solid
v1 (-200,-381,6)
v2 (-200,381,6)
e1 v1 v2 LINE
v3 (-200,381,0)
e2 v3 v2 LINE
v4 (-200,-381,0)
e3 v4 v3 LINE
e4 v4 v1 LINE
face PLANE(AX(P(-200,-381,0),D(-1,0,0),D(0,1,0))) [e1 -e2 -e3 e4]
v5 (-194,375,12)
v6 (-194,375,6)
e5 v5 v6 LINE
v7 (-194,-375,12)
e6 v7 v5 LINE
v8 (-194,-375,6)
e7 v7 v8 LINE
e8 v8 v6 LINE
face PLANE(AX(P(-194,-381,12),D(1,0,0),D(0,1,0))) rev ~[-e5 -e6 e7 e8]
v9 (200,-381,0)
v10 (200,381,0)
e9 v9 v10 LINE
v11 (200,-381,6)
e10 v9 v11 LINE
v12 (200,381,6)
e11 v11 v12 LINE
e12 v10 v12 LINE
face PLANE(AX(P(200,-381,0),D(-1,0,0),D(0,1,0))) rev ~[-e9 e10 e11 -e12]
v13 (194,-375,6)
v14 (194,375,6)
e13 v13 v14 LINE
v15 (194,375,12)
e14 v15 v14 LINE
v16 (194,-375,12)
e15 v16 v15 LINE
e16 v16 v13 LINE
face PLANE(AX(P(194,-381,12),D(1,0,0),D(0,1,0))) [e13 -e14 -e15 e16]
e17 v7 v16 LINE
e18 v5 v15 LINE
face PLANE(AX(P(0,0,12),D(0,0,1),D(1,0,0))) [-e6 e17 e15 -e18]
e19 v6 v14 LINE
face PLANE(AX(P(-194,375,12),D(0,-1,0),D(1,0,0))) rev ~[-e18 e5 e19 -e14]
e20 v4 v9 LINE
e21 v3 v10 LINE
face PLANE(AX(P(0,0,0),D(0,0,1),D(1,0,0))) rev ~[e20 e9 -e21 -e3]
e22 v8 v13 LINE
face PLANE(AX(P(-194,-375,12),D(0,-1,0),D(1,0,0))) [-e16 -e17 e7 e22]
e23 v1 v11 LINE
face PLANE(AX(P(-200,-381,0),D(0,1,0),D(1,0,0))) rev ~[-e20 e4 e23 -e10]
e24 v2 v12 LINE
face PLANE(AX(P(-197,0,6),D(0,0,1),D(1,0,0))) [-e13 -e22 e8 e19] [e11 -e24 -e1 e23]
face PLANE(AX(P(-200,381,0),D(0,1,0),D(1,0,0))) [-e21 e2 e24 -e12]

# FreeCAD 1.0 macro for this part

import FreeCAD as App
import Part
import Sketcher
from FreeCAD import Vector
Q = App.Units.Quantity

doc = App.newDocument("Part")
body = doc.addObject("PartDesign::Body", "Body")

# Sketch on XY plane
sketch1 = body.newObject("Sketcher::SketchObject", "Sketch")
sketch1.AttachmentSupport = (doc.getObject("XY_Plane"), [""])
sketch1.MapMode = "FlatFace"
sketch1.addGeometry(Part.LineSegment(Vector(-200, 381, 0), Vector(-200, -381, 0)), False)
sketch1.addGeometry(Part.LineSegment(Vector(-200, -381, 0), Vector(200, -381, 0)), False)
sketch1.addGeometry(Part.LineSegment(Vector(200, -381, 0), Vector(200, 381, 0)), False)
sketch1.addGeometry(Part.LineSegment(Vector(200, 381, 0), Vector(-200, 381, 0)), False)
sketch1.addConstraint(Sketcher.Constraint("Coincident", 0, 2, 1, 1))
sketch1.addConstraint(Sketcher.Constraint("Coincident", 1, 2, 2, 1))
sketch1.addConstraint(Sketcher.Constraint("Coincident", 2, 2, 3, 1))
sketch1.addConstraint(Sketcher.Constraint("Coincident", 3, 2, 0, 1))
sketch1.addConstraint(Sketcher.Constraint("Vertical", 0))
sketch1.addConstraint(Sketcher.Constraint("Horizontal", 1))
sketch1.addConstraint(Sketcher.Constraint("Vertical", 2))
sketch1.addConstraint(Sketcher.Constraint("Horizontal", 3))
sketch1.addConstraint(Sketcher.Constraint("Symmetric", 0, 2, 2, 2, -1, 1))
sketch1.addConstraint(Sketcher.Constraint("DistanceX", 1, 1, 1, 2, Q("400 mm")))
sketch1.addConstraint(Sketcher.Constraint("DistanceY", 0, 2, 0, 1, Q("762 mm")))
pad1 = body.newObject("PartDesign::Pad", "Pad")
pad1.Profile = sketch1
pad1.Length = 12

# Sketch on XY plane
sketch2 = body.newObject("Sketcher::SketchObject", "Sketch001")
sketch2.AttachmentSupport = (doc.getObject("XY_Plane"), [""])
sketch2.MapMode = "FlatFace"
sketch2.AttachmentOffset = App.Placement(Vector(0, 0, 12), App.Rotation())
sketch2.addGeometry(Part.LineSegment(Vector(-200, 381, 0), Vector(-200, -381, 0)), False)
sketch2.addGeometry(Part.LineSegment(Vector(-200, -381, 0), Vector(-194, -381, 0)), False)
sketch2.addGeometry(Part.LineSegment(Vector(-194, -381, 0), Vector(-194, 381, 0)), False)
sketch2.addGeometry(Part.LineSegment(Vector(-194, 381, 0), Vector(-200, 381, 0)), False)
sketch2.addConstraint(Sketcher.Constraint("Coincident", 0, 2, 1, 1))
sketch2.addConstraint(Sketcher.Constraint("Coincident", 1, 2, 2, 1))
sketch2.addConstraint(Sketcher.Constraint("Coincident", 2, 2, 3, 1))
sketch2.addConstraint(Sketcher.Constraint("Coincident", 3, 2, 0, 1))
sketch2.addConstraint(Sketcher.Constraint("Vertical", 0))
sketch2.addConstraint(Sketcher.Constraint("Horizontal", 1))
sketch2.addConstraint(Sketcher.Constraint("Vertical", 2))
sketch2.addConstraint(Sketcher.Constraint("Horizontal", 3))
sketch2.addConstraint(Sketcher.Constraint("DistanceX", 1, 1, 1, 2, Q("6 mm")))
sketch2.addConstraint(Sketcher.Constraint("DistanceY", 0, 2, 0, 1, Q("762 mm")))
sketch2.addConstraint(Sketcher.Constraint("DistanceX", 0, 2, -1, 1, Q("200 mm")))
sketch2.addConstraint(Sketcher.Constraint("DistanceY", 0, 2, -1, 1, Q("381 mm")))
pocket1 = body.newObject("PartDesign::Pocket", "Pocket")
pocket1.Profile = sketch2
pocket1.Length = 6

# Sketch on XY plane
sketch3 = body.newObject("Sketcher::SketchObject", "Sketch002")
sketch3.AttachmentSupport = (doc.getObject("XY_Plane"), [""])
sketch3.MapMode = "FlatFace"
sketch3.AttachmentOffset = App.Placement(Vector(0, 0, 12), App.Rotation())
sketch3.addGeometry(Part.LineSegment(Vector(194, 381, 0), Vector(194, -381, 0)), False)
sketch3.addGeometry(Part.LineSegment(Vector(194, -381, 0), Vector(200, -381, 0)), False)
sketch3.addGeometry(Part.LineSegment(Vector(200, -381, 0), Vector(200, 381, 0)), False)
sketch3.addGeometry(Part.LineSegment(Vector(200, 381, 0), Vector(194, 381, 0)), False)
sketch3.addConstraint(Sketcher.Constraint("Coincident", 0, 2, 1, 1))
sketch3.addConstraint(Sketcher.Constraint("Coincident", 1, 2, 2, 1))
sketch3.addConstraint(Sketcher.Constraint("Coincident", 2, 2, 3, 1))
sketch3.addConstraint(Sketcher.Constraint("Coincident", 3, 2, 0, 1))
sketch3.addConstraint(Sketcher.Constraint("Vertical", 0))
sketch3.addConstraint(Sketcher.Constraint("Horizontal", 1))
sketch3.addConstraint(Sketcher.Constraint("Vertical", 2))
sketch3.addConstraint(Sketcher.Constraint("Horizontal", 3))
sketch3.addConstraint(Sketcher.Constraint("DistanceX", 1, 1, 1, 2, Q("6 mm")))
sketch3.addConstraint(Sketcher.Constraint("DistanceY", 0, 2, 0, 1, Q("762 mm")))
sketch3.addConstraint(Sketcher.Constraint("DistanceX", -1, 1, 0, 2, Q("194 mm")))
sketch3.addConstraint(Sketcher.Constraint("DistanceY", 0, 2, -1, 1, Q("381 mm")))
pocket2 = body.newObject("PartDesign::Pocket", "Pocket001")
pocket2.Profile = sketch3
pocket2.Length = 6

# Sketch on XY plane
sketch4 = body.newObject("Sketcher::SketchObject", "Sketch003")
sketch4.AttachmentSupport = (doc.getObject("XY_Plane"), [""])
sketch4.MapMode = "FlatFace"
sketch4.AttachmentOffset = App.Placement(Vector(0, 0, 12), App.Rotation())
sketch4.addGeometry(Part.LineSegment(Vector(-194, 381, 0), Vector(-194, 375, 0)), False)
sketch4.addGeometry(Part.LineSegment(Vector(-194, 375, 0), Vector(194, 375, 0)), False)
sketch4.addGeometry(Part.LineSegment(Vector(194, 375, 0), Vector(194, 381, 0)), False)
sketch4.addGeometry(Part.LineSegment(Vector(194, 381, 0), Vector(-194, 381, 0)), False)
sketch4.addConstraint(Sketcher.Constraint("Coincident", 0, 2, 1, 1))
sketch4.addConstraint(Sketcher.Constraint("Coincident", 1, 2, 2, 1))
sketch4.addConstraint(Sketcher.Constraint("Coincident", 2, 2, 3, 1))
sketch4.addConstraint(Sketcher.Constraint("Coincident", 3, 2, 0, 1))
sketch4.addConstraint(Sketcher.Constraint("Vertical", 0))
sketch4.addConstraint(Sketcher.Constraint("Horizontal", 1))
sketch4.addConstraint(Sketcher.Constraint("Vertical", 2))
sketch4.addConstraint(Sketcher.Constraint("Horizontal", 3))
sketch4.addConstraint(Sketcher.Constraint("DistanceX", 1, 1, 1, 2, Q("388 mm")))
sketch4.addConstraint(Sketcher.Constraint("DistanceY", 0, 2, 0, 1, Q("6 mm")))
sketch4.addConstraint(Sketcher.Constraint("DistanceX", 0, 2, -1, 1, Q("194 mm")))
sketch4.addConstraint(Sketcher.Constraint("DistanceY", -1, 1, 0, 2, Q("375 mm")))
pocket3 = body.newObject("PartDesign::Pocket", "Pocket002")
pocket3.Profile = sketch4
pocket3.Length = 6

# Sketch on XY plane
sketch5 = body.newObject("Sketcher::SketchObject", "Sketch004")
sketch5.AttachmentSupport = (doc.getObject("XY_Plane"), [""])
sketch5.MapMode = "FlatFace"
sketch5.AttachmentOffset = App.Placement(Vector(0, 0, 12), App.Rotation())
sketch5.addGeometry(Part.LineSegment(Vector(-194, -375, 0), Vector(-194, -381, 0)), False)
sketch5.addGeometry(Part.LineSegment(Vector(-194, -381, 0), Vector(194, -381, 0)), False)
sketch5.addGeometry(Part.LineSegment(Vector(194, -381, 0), Vector(194, -375, 0)), False)
sketch5.addGeometry(Part.LineSegment(Vector(194, -375, 0), Vector(-194, -375, 0)), False)
sketch5.addConstraint(Sketcher.Constraint("Coincident", 0, 2, 1, 1))
sketch5.addConstraint(Sketcher.Constraint("Coincident", 1, 2, 2, 1))
sketch5.addConstraint(Sketcher.Constraint("Coincident", 2, 2, 3, 1))
sketch5.addConstraint(Sketcher.Constraint("Coincident", 3, 2, 0, 1))
sketch5.addConstraint(Sketcher.Constraint("Vertical", 0))
sketch5.addConstraint(Sketcher.Constraint("Horizontal", 1))
sketch5.addConstraint(Sketcher.Constraint("Vertical", 2))
sketch5.addConstraint(Sketcher.Constraint("Horizontal", 3))
sketch5.addConstraint(Sketcher.Constraint("DistanceX", 1, 1, 1, 2, Q("388 mm")))
sketch5.addConstraint(Sketcher.Constraint("DistanceY", 0, 2, 0, 1, Q("6 mm")))
sketch5.addConstraint(Sketcher.Constraint("DistanceX", 0, 2, -1, 1, Q("194 mm")))
sketch5.addConstraint(Sketcher.Constraint("DistanceY", 0, 2, -1, 1, Q("381 mm")))
pocket4 = body.newObject("PartDesign::Pocket", "Pocket003")
pocket4.Profile = sketch5
pocket4.Length = 6

doc.recompute()
